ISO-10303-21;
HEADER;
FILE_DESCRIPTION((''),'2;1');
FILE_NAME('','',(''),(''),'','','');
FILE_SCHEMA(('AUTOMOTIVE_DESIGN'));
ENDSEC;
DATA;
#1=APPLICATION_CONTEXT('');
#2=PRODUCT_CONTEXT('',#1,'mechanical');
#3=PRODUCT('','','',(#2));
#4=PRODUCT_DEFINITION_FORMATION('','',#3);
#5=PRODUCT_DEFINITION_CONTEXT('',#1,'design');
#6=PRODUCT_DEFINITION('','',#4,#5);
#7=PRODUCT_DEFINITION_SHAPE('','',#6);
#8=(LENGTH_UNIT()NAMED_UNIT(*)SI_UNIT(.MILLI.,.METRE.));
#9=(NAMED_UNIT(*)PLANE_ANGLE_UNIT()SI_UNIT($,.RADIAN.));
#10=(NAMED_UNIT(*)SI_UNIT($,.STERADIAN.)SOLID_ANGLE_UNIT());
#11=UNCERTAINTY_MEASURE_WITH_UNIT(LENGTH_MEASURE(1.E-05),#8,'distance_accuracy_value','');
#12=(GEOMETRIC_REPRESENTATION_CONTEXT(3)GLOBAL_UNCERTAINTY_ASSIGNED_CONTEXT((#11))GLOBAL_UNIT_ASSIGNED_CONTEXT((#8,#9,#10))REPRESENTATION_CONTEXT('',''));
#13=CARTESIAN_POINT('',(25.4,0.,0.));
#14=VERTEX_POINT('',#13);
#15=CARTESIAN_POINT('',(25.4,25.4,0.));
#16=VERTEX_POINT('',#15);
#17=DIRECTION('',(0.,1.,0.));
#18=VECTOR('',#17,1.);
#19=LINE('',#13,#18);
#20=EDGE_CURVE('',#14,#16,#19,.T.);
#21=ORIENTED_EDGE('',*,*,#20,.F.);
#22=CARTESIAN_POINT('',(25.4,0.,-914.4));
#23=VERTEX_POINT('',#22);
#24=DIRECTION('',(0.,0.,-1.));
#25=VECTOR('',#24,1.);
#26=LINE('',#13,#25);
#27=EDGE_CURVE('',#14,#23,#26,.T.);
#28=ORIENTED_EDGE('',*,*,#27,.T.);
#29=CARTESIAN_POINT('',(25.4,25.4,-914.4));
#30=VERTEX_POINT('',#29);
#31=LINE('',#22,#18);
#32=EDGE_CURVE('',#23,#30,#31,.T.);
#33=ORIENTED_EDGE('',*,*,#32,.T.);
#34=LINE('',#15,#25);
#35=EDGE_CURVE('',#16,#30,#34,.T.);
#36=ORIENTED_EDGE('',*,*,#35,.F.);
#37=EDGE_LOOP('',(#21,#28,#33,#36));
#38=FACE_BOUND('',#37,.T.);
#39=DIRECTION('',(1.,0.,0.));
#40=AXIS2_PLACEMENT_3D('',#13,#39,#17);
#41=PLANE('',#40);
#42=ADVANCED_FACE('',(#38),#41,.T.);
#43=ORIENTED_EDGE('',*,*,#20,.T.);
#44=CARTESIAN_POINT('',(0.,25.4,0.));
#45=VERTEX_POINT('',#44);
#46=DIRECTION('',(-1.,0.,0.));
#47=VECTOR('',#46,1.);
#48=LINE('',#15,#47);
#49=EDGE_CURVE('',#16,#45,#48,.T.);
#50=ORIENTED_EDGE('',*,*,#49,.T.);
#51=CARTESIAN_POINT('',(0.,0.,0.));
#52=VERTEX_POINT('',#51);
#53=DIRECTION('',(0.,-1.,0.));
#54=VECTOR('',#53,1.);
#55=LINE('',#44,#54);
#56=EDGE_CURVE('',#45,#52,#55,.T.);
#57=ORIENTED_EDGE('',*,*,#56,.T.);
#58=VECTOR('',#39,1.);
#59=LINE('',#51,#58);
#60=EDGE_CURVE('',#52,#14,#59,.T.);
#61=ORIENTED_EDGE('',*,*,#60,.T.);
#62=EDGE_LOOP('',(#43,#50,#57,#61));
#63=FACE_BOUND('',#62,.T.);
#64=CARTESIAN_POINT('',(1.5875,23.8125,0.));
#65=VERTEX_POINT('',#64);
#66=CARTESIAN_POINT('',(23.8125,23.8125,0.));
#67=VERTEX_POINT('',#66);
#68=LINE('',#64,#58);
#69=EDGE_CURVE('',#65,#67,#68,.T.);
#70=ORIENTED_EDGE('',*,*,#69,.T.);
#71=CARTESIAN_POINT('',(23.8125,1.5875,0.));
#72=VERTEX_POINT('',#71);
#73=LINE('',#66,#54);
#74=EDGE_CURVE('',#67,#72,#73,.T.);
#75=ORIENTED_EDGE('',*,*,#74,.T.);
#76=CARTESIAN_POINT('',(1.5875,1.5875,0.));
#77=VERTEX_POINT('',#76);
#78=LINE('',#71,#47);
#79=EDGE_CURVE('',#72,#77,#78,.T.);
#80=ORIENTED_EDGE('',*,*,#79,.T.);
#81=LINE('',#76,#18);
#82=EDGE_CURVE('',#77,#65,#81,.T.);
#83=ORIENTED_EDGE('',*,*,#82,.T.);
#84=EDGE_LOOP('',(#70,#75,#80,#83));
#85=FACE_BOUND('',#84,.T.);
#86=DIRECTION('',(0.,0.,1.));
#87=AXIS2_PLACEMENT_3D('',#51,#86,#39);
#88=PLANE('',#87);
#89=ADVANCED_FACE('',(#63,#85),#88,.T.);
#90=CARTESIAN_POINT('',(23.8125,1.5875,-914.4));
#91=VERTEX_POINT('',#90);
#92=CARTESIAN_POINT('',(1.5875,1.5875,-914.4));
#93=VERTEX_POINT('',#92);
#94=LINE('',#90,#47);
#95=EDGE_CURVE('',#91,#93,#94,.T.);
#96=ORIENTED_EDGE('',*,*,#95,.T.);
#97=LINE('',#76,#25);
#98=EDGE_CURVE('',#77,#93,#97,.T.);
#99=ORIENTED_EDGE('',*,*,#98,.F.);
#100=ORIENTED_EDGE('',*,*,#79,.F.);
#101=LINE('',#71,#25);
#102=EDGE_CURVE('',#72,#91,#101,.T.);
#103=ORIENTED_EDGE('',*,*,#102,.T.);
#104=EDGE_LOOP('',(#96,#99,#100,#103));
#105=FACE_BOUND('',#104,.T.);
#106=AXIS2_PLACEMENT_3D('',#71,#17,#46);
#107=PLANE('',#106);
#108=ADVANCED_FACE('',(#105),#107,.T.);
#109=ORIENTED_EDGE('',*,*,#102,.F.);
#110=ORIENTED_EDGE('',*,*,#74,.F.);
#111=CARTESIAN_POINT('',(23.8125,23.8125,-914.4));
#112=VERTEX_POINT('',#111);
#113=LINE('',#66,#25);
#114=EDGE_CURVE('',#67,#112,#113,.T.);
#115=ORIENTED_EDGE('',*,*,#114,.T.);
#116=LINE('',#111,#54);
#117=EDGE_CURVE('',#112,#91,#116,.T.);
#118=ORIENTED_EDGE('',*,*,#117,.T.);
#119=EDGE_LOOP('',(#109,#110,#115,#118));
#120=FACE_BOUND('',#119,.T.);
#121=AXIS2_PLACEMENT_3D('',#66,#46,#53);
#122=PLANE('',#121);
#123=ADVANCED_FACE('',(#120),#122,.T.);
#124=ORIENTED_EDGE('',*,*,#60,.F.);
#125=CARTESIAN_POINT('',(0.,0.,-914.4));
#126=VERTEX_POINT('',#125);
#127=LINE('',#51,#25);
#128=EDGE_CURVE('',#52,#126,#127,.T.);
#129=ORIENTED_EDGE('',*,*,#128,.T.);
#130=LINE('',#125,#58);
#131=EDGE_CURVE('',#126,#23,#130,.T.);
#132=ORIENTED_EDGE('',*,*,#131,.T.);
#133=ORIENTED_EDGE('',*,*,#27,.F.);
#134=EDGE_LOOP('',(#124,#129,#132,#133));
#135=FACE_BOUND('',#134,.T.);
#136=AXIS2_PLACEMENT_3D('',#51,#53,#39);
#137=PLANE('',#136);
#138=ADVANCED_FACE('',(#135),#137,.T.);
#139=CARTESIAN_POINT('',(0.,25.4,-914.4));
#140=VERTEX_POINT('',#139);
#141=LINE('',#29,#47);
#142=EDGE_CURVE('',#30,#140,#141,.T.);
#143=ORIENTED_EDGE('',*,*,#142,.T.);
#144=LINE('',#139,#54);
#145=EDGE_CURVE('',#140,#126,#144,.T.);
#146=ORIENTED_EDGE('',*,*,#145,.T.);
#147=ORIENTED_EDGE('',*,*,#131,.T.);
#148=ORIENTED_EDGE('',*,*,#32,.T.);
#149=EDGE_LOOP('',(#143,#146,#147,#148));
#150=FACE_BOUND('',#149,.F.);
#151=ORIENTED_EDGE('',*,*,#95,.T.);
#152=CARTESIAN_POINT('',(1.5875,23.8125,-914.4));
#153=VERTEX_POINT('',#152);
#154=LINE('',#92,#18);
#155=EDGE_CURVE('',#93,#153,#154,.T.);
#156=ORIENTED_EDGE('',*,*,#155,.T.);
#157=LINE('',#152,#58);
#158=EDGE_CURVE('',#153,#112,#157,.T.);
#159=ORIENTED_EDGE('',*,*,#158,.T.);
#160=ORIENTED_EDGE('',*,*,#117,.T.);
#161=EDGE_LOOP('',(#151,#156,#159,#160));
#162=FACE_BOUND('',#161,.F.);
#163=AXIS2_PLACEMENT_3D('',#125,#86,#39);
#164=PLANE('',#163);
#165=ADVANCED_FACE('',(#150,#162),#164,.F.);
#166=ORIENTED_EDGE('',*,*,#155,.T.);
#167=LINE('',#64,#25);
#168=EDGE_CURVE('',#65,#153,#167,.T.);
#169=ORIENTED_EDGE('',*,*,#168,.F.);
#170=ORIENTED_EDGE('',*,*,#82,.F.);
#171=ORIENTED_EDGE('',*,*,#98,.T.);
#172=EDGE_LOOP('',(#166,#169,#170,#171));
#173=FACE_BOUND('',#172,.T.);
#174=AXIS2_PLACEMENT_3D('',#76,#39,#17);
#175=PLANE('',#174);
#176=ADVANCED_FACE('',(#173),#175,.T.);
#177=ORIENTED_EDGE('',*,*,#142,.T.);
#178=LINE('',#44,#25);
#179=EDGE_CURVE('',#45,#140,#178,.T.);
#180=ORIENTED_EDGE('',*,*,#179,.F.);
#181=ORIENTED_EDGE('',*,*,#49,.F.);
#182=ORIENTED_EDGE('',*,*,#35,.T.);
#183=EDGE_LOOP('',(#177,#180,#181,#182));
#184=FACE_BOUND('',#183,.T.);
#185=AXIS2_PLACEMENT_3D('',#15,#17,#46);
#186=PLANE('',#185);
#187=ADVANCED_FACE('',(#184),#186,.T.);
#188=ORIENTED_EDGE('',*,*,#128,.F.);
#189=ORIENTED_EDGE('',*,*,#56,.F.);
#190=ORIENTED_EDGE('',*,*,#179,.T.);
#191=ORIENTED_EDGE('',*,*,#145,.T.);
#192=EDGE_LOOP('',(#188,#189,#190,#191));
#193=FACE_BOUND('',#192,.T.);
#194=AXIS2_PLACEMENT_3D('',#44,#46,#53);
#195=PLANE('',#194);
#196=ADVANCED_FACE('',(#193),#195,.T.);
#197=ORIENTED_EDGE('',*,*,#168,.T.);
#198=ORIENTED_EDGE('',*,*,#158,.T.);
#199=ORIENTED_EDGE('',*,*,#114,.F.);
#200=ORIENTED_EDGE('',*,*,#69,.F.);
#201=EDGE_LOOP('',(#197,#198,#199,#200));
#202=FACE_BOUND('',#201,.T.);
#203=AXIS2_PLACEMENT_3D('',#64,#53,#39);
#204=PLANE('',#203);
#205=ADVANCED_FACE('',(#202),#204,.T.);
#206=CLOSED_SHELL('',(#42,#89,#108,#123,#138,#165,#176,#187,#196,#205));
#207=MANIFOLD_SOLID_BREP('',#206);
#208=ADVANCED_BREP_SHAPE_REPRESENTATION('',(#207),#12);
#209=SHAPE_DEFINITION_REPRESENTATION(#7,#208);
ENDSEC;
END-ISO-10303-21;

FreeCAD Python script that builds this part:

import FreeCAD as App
import Part
import Sketcher

V = App.Vector
Q = App.Units.Quantity

doc = App.newDocument("Part")
body = doc.addObject("PartDesign::Body", "Body")

sketch1 = body.newObject("Sketcher::SketchObject", "Sketch")
sketch1.AttachmentSupport = (doc.getObject("XY_Plane"), [""])
sketch1.MapMode = "FlatFace"
sketch1.addGeometry([
    Part.LineSegment(V(0, 25.4, 0), V(0, 0, 0)),
    Part.LineSegment(V(0, 0, 0), V(25.4, 0, 0)),
    Part.LineSegment(V(25.4, 0, 0), V(25.4, 25.4, 0)),
    Part.LineSegment(V(25.4, 25.4, 0), V(0, 25.4, 0)),
    Part.LineSegment(V(1.5875, 1.5875, 0), V(1.5875, 23.8125, 0)),
    Part.LineSegment(V(1.5875, 23.8125, 0), V(23.8125, 23.8125, 0)),
    Part.LineSegment(V(23.8125, 23.8125, 0), V(23.8125, 1.5875, 0)),
    Part.LineSegment(V(23.8125, 1.5875, 0), V(1.5875, 1.5875, 0)),
], False)
sketch1.addConstraint([
    Sketcher.Constraint("Coincident", 0, 2, 1, 1),
    Sketcher.Constraint("Coincident", 1, 2, 2, 1),
    Sketcher.Constraint("Coincident", 2, 2, 3, 1),
    Sketcher.Constraint("Coincident", 3, 2, 0, 1),
    Sketcher.Constraint("Coincident", 4, 2, 5, 1),
    Sketcher.Constraint("Coincident", 5, 2, 6, 1),
    Sketcher.Constraint("Coincident", 6, 2, 7, 1),
    Sketcher.Constraint("Coincident", 7, 2, 4, 1),
    Sketcher.Constraint("Vertical", 0),
    Sketcher.Constraint("Horizontal", 1),
    Sketcher.Constraint("Vertical", 2),
    Sketcher.Constraint("Horizontal", 3),
    Sketcher.Constraint("Vertical", 4),
    Sketcher.Constraint("Horizontal", 5),
    Sketcher.Constraint("Vertical", 6),
    Sketcher.Constraint("Horizontal", 7),
    Sketcher.Constraint("Coincident", 0, 2, -1, 1),
    Sketcher.Constraint("Equal", 3, 0),
    Sketcher.Constraint("Equal", 7, 4),
    Sketcher.Constraint("DistanceX", 1, 1, 1, 2, Q("1 in")),
    Sketcher.Constraint("DistanceX", -1, 1, 4, 2, Q("0.0625 in")),
    Sketcher.Constraint("DistanceY", -1, 1, 6, 2, Q("0.0625 in")),
    Sketcher.Constraint("DistanceY", 4, 2, 3, 2, Q("0.0625 in")),
])
pad1 = body.newObject("PartDesign::Pad", "Pad")
pad1.Profile = sketch1
pad1.Length = Q("36 in")
pad1.Reversed = True

doc.recompute()
